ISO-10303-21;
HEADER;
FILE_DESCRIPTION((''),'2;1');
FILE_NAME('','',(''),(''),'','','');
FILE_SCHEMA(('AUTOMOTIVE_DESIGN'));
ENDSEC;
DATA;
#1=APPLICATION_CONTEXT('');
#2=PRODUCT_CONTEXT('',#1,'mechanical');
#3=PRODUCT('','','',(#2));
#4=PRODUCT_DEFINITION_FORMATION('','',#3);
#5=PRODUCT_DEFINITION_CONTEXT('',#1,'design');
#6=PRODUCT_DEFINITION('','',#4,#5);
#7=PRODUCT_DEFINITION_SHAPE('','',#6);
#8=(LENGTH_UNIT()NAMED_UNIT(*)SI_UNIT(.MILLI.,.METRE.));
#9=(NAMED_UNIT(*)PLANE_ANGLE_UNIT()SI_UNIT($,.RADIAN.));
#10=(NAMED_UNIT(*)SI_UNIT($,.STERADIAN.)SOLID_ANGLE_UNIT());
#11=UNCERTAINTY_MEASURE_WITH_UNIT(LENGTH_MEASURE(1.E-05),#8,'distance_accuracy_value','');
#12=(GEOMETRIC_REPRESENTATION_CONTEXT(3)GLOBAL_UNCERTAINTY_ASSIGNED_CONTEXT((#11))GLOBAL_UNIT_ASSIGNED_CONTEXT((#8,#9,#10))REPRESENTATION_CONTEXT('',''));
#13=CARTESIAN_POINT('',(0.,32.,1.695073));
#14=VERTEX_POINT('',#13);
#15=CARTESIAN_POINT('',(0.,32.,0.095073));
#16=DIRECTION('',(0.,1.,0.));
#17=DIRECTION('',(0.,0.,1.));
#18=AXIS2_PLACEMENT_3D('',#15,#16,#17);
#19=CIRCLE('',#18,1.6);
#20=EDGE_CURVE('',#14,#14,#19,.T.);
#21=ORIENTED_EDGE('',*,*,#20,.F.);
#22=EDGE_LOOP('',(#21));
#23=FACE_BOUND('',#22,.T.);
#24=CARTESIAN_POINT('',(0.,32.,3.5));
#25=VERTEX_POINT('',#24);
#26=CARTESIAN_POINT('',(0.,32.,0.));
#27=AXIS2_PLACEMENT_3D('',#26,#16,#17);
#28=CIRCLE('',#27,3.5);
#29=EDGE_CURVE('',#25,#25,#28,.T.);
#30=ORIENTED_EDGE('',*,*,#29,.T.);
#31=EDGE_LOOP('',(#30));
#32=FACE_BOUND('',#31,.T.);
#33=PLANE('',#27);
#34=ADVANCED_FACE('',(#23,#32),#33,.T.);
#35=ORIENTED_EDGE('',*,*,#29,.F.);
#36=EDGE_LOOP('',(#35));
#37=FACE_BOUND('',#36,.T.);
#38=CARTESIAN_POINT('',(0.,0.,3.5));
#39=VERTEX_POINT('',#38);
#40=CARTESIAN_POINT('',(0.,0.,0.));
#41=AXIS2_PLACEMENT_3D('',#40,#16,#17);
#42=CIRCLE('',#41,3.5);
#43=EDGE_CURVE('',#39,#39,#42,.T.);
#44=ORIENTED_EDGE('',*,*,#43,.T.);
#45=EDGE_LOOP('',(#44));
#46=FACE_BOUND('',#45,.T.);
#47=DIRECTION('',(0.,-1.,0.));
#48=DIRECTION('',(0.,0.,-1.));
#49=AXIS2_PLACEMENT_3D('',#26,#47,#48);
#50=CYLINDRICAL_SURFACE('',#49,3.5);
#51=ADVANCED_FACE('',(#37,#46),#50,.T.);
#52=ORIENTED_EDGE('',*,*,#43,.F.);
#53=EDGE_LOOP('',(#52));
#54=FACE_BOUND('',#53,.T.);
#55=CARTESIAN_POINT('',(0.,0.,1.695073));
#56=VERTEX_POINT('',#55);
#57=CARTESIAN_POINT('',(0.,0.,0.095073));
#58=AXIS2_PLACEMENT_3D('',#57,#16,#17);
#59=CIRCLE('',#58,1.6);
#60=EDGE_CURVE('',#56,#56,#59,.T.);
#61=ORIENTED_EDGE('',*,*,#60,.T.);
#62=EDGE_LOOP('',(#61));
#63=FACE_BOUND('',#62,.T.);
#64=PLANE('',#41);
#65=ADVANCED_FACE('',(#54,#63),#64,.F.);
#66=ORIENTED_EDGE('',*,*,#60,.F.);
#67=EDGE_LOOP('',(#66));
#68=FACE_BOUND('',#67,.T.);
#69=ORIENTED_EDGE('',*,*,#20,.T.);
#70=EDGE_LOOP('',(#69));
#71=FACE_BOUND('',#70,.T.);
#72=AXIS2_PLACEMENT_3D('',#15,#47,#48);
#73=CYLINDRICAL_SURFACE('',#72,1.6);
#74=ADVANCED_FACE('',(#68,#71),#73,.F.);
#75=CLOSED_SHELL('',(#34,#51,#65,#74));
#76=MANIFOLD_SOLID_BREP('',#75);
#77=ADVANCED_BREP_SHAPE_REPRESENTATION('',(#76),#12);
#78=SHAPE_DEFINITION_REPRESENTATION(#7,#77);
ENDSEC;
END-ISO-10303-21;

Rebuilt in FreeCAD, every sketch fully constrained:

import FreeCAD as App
import Part
import Sketcher
from FreeCAD import Vector

doc = App.newDocument("Part")
params = doc.addObject("Spreadsheet::Sheet", "Params")
for row, (alias, value) in enumerate([
    ("sketch1_diameter", "7 mm"),
    ("sketch1_diameter2", "3.2 mm"),
    ("pad1_length", "32 mm"),
], start=1):
    params.set(f"A{row}", alias)
    params.set(f"B{row}", "=" + value)
    params.setAlias(f"B{row}", alias)

body = doc.addObject("PartDesign::Body", "Body")

# Sketch on XZ plane
sketch1 = doc.addObject("Sketcher::SketchObject", "Sketch")
body.addObject(sketch1)
sketch1.AttachmentSupport = (doc.XZ_Plane, [""])
sketch1.MapMode = "FlatFace"
sketch1.addGeometry([
    Part.Circle(Vector(0, 0, 0), Vector(0, 0, 1), 3.5),
    Part.Circle(Vector(0, 0.095073, 0), Vector(0, 0, 1), 1.6),
], False)
sketch1.addConstraint([
    Sketcher.Constraint("Coincident", 0, 3, -1, 1),
    Sketcher.Constraint("PointOnObject", 1, 3, -2),
    Sketcher.Constraint("Diameter", 0, 7.0),
    Sketcher.Constraint("Diameter", 1, 3.2),
    Sketcher.Constraint("DistanceY", -1, 1, 1, 3, 0.095073),
])
sketch1.setExpression("Constraints[2]", "Params.sketch1_diameter")
sketch1.setExpression("Constraints[3]", "Params.sketch1_diameter2")
pad1 = doc.addObject("PartDesign::Pad", "Pad")
body.addObject(pad1)
pad1.Profile = sketch1
pad1.setExpression("Length", "Params.pad1_length")
pad1.Reversed = True

doc.recompute()
